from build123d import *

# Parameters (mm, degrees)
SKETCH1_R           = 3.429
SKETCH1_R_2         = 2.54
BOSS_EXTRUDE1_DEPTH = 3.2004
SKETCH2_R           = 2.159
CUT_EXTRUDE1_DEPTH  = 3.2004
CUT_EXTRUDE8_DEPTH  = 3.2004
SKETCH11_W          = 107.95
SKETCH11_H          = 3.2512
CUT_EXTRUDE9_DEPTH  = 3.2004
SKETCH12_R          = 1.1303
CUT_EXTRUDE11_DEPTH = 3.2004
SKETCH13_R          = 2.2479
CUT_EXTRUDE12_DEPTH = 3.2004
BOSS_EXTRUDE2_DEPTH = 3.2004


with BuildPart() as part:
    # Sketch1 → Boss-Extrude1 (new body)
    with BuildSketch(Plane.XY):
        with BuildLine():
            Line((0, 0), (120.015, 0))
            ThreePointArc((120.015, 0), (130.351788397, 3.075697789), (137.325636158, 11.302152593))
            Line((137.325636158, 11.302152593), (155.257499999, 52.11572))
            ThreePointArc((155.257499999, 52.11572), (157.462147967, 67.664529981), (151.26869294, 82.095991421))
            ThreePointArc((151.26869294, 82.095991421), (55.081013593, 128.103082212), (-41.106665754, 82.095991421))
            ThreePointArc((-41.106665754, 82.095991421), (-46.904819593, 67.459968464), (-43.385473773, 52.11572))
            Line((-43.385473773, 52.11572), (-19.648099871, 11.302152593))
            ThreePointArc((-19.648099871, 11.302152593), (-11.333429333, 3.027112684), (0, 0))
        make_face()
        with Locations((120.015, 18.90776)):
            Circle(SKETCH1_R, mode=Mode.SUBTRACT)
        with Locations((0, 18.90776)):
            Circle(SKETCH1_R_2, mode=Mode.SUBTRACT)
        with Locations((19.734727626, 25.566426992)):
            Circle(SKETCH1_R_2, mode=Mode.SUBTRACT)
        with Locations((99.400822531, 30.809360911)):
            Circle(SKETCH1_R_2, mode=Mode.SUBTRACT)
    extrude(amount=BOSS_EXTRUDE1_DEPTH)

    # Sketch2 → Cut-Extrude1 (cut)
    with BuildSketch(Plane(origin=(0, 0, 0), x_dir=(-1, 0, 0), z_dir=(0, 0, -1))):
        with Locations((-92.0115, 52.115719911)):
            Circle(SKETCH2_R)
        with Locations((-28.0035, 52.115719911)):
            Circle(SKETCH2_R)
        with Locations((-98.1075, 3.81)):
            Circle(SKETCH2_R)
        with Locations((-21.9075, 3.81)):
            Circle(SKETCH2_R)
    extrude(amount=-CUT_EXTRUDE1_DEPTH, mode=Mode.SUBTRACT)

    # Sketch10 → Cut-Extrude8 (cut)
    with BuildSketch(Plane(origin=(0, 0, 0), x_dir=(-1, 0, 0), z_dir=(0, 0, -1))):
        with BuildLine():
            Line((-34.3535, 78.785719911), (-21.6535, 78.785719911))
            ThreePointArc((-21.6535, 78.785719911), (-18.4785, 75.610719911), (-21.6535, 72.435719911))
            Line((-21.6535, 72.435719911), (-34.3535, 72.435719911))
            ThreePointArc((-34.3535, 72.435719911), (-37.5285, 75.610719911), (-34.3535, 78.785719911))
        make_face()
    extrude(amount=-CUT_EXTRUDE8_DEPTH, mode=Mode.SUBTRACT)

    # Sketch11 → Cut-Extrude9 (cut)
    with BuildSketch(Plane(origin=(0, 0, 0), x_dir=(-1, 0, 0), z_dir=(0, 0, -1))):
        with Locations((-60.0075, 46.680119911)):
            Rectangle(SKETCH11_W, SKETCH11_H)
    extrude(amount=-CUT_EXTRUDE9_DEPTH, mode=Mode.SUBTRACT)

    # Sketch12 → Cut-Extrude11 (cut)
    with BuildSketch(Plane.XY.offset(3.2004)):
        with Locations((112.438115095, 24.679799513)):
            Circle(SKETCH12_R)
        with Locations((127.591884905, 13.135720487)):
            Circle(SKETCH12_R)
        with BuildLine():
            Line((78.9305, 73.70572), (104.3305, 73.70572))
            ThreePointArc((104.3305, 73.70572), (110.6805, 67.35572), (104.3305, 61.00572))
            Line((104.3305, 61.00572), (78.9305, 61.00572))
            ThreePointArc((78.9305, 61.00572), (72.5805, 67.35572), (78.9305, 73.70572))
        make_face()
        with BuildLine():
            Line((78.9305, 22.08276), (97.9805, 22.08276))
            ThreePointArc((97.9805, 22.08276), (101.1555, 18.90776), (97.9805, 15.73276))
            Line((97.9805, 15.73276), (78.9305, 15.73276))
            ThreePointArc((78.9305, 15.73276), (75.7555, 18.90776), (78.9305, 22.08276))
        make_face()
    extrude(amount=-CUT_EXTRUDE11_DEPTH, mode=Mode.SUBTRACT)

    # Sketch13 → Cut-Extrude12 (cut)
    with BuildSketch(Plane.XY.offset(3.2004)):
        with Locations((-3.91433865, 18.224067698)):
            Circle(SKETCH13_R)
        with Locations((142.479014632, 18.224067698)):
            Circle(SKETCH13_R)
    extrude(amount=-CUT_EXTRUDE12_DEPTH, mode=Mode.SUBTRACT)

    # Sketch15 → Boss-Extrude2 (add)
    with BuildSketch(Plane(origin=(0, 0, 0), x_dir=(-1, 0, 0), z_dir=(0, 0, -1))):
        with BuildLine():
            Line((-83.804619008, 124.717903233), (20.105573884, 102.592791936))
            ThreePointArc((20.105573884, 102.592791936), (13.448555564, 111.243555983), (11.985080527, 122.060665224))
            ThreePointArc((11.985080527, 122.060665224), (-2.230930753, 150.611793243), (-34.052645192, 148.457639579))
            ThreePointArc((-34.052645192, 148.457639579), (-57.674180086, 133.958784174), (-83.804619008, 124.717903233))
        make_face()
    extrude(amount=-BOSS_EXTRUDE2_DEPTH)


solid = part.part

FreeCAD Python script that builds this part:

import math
import FreeCAD as App
import Part
import Sketcher

V = App.Vector
Q = App.Units.Quantity


def add_polygon(sketch, points):
    """Adds a closed chain of lines whose ends are joined by coincident constraints."""
    first, n = sketch.GeometryCount, len(points)
    for a, b in zip(points, points[1:] + points[:1]):
        sketch.addGeometry(Part.LineSegment(App.Vector(*a, 0), App.Vector(*b, 0)), False)
    for i in range(n):
        sketch.addConstraint(Sketcher.Constraint("Coincident", first + i, 2, first + (i + 1) % n, 1))

doc = App.newDocument("Part")
body = doc.addObject("PartDesign::Body", "Body")

sketch1 = doc.addObject("Sketcher::SketchObject", "Sketch")
body.addObject(sketch1)
sketch1.AttachmentSupport = (doc.XY_Plane, [""])
sketch1.MapMode = "FlatFace"
sketch1.addGeometry([
    Part.LineSegment(V(0, 0, 0), V(120, 0, 0)),
    Part.ArcOfCircle(Part.Circle(V(120, 18.9, 0), V(0, 0, 1), 18.9), math.radians(-90), math.radians(-24)),
    Part.LineSegment(V(137.3, 11.3, 0), V(155.3, 52.1, 0)),
    Part.ArcOfCircle(Part.Circle(V(128.6, 63.8, 0), V(0, 0, 1), 29.1), math.radians(-24), math.radians(39)),
    Part.ArcOfCircle(Part.Circle(V(55.1, 4.5, 0), V(0, 0, 1), 123.6), math.radians(39), math.radians(141)),
    Part.ArcOfCircle(Part.Circle(V(-20.5, 65.4, 0), V(0, 0, 1), 26.5), math.radians(141), math.radians(210)),
    Part.LineSegment(V(-43.4, 52.1, 0), V(-19.6, 11.3, 0)),
    Part.ArcOfCircle(Part.Circle(V(0, 22.7, 0), V(0, 0, 1), 22.7), math.radians(-150), math.radians(-90)),
    Part.Circle(V(0, 18.9, 0), V(0, 0, 1), 2.5),
    Part.Circle(V(120, 18.9, 0), V(0, 0, 1), 3.4),
    Part.Circle(V(19.7, 25.6, 0), V(0, 0, 1), 2.5),
    Part.Circle(V(99.4, 30.8, 0), V(0, 0, 1), 2.5),
], False)
sketch1.addConstraint([
    Sketcher.Constraint("Tangent", 0, 2, 1, 1),
    Sketcher.Constraint("Tangent", 1, 2, 2, 1),
    Sketcher.Constraint("Tangent", 2, 2, 3, 1),
    Sketcher.Constraint("Tangent", 3, 2, 4, 1),
    Sketcher.Constraint("Tangent", 4, 2, 5, 1),
    Sketcher.Constraint("Tangent", 5, 2, 6, 1),
    Sketcher.Constraint("Tangent", 6, 2, 7, 1),
    Sketcher.Constraint("Tangent", 7, 2, 0, 1),
    Sketcher.Constraint("Horizontal", 0),
    Sketcher.Constraint("Coincident", 7, 2, -1, 1),
    Sketcher.Constraint("Coincident", 9, 3, 1, 3),
    Sketcher.Constraint("Equal", 8, 10),
    Sketcher.Constraint("Equal", 10, 11),
    Sketcher.Constraint("PointOnObject", 8, 3, -2),
    Sketcher.Constraint("Horizontal", 1, 3, 8, 3),
    Sketcher.Constraint("Horizontal", 3, 2, 4, 2),
    Sketcher.Constraint("Horizontal", 2, 2, 5, 2),
    Sketcher.Constraint("Horizontal", 1, 2, 6, 2),
    Sketcher.Constraint("Diameter", 8, Q("0.2 in")),
    Sketcher.Constraint("Diameter", 9, Q("0.27 in")),
    Sketcher.Constraint("Radius", 1, Q("0.7444 in")),
    Sketcher.Constraint("DistanceX", 0, 1, 0, 2, Q("4.725 in")),
    Sketcher.Constraint("Radius", 4, Q("123.55402 mm")),
    Sketcher.Constraint("Radius", 5, Q("26.52202 mm")),
    Sketcher.Constraint("DistanceX", -1, 1, 2, 2, Q("6.1125 in")),
    Sketcher.Constraint("DistanceY", -1, 1, 2, 2, Q("2.0518 in")),
    Sketcher.Constraint("Radius", 3, Q("29.110345 mm")),
    Sketcher.Constraint("DistanceY", 1, 3, 11, 3, Q("11.901601 mm")),
    Sketcher.Constraint("DistanceX", 5, 2, 10, 3, Q("63.120201 mm")),
    Sketcher.Constraint("DistanceY", 7, 3, 10, 3, Q("2.836842 mm")),
    Sketcher.Constraint("DistanceX", 11, 3, 3, 3, Q("29.205261 mm")),
])
pad1 = doc.addObject("PartDesign::Pad", "Pad")
body.addObject(pad1)
pad1.Profile = sketch1
pad1.Length = Q("0.126 in")

sketch2 = doc.addObject("Sketcher::SketchObject", "Sketch001")
body.addObject(sketch2)
sketch2.AttachmentSupport = (doc.XY_Plane, [""])
sketch2.MapMode = "FlatFace"
sketch2.addGeometry([
    Part.Circle(V(92, 52.1, 0), V(0, 0, 1), 2.2),
    Part.Circle(V(28, 52.1, 0), V(0, 0, 1), 2.2),
    Part.Circle(V(98.1, 3.8, 0), V(0, 0, 1), 2.2),
    Part.Circle(V(21.9, 3.8, 0), V(0, 0, 1), 2.2),
], False)
sketch2.addConstraint([
    Sketcher.Constraint("Equal", 0, 1),
    Sketcher.Constraint("Equal", 1, 2),
    Sketcher.Constraint("Equal", 2, 3),
    Sketcher.Constraint("Horizontal", 0, 3, 1, 3),
    Sketcher.Constraint("Horizontal", 2, 3, 3, 3),
    Sketcher.Constraint("Diameter", 0, Q("0.17 in")),
    Sketcher.Constraint("DistanceX", 3, 3, 2, 3, Q("3 in")),
    Sketcher.Constraint("DistanceY", -1, 1, 2, 3, Q("0.15 in")),
    Sketcher.Constraint("DistanceX", 1, 3, 0, 3, Q("2.52 in")),
    Sketcher.Constraint("DistanceX", 0, 3, 2, 3, Q("0.24 in")),
    Sketcher.Constraint("DistanceX", -1, 1, 0, 3, Q("3.6225 in")),
    Sketcher.Constraint("DistanceY", -1, 1, 0, 3, Q("2.0518 in")),
])
pocket1 = doc.addObject("PartDesign::Pocket", "Pocket")
body.addObject(pocket1)
pocket1.Profile = sketch2
pocket1.Length = Q("0.126 in")
pocket1.Reversed = True

sketch3 = doc.addObject("Sketcher::SketchObject", "Sketch002")
body.addObject(sketch3)
sketch3.AttachmentSupport = (doc.XY_Plane, [""])
sketch3.MapMode = "FlatFace"
sketch3.addGeometry([
    Part.LineSegment(V(21.7, 78.8, 0), V(34.4, 78.8, 0)),
    Part.ArcOfCircle(Part.Circle(V(34.4, 75.6, 0), V(0, 0, 1), 3.2), math.radians(-90), math.radians(90)),
    Part.LineSegment(V(34.4, 72.4, 0), V(21.7, 72.4, 0)),
    Part.ArcOfCircle(Part.Circle(V(21.7, 75.6, 0), V(0, 0, 1), 3.2), math.radians(90), math.radians(270)),
], False)
sketch3.addConstraint([
    Sketcher.Constraint("Tangent", 0, 2, 1, 2),
    Sketcher.Constraint("Tangent", 1, 1, 2, 1),
    Sketcher.Constraint("Tangent", 2, 2, 3, 2),
    Sketcher.Constraint("Tangent", 3, 1, 0, 1),
    Sketcher.Constraint("Horizontal", 0),
    Sketcher.Constraint("Horizontal", 2),
    Sketcher.Constraint("DistanceX", 0, 1, 0, 2, Q("0.5 in")),
    Sketcher.Constraint("Radius", 1, Q("0.125 in")),
    Sketcher.Constraint("DistanceX", -1, 1, 1, 3, Q("1.3525 in")),
    Sketcher.Constraint("DistanceY", -1, 1, 1, 3, Q("2.9768 in")),
])
pocket2 = doc.addObject("PartDesign::Pocket", "Pocket001")
body.addObject(pocket2)
pocket2.Profile = sketch3
pocket2.Length = Q("0.126 in")
pocket2.Reversed = True

sketch4 = doc.addObject("Sketcher::SketchObject", "Sketch003")
body.addObject(sketch4)
sketch4.AttachmentSupport = (doc.XY_Plane, [""])
sketch4.MapMode = "FlatFace"
add_polygon(sketch4, [(114, 48.3), (114, 45.1), (6, 45.1), (6, 48.3)])
sketch4.addConstraint([
    Sketcher.Constraint("Vertical", 0),
    Sketcher.Constraint("Horizontal", 1),
    Sketcher.Constraint("Vertical", 2),
    Sketcher.Constraint("Horizontal", 3),
    Sketcher.Constraint("DistanceX", 1, 2, 1, 1, Q("4.25 in")),
    Sketcher.Constraint("DistanceY", 0, 2, 0, 1, Q("0.128 in")),
    Sketcher.Constraint("DistanceX", -1, 1, 0, 2, Q("4.4875 in")),
    Sketcher.Constraint("DistanceY", -1, 1, 0, 2, Q("1.7738 in")),
])
pocket3 = doc.addObject("PartDesign::Pocket", "Pocket002")
body.addObject(pocket3)
pocket3.Profile = sketch4
pocket3.Length = Q("0.126 in")
pocket3.Reversed = True

sketch5 = doc.addObject("Sketcher::SketchObject", "Sketch004")
body.addObject(sketch5)
sketch5.AttachmentSupport = (doc.XY_Plane, [""])
sketch5.MapMode = "FlatFace"
sketch5.AttachmentOffset = App.Placement(V(0, 0, 0.126 * 25.4), App.Rotation())
sketch5.addGeometry([
    Part.Circle(V(112.4, 24.7, 0), V(0, 0, 1), 1.1),
    Part.Circle(V(127.6, 13.1, 0), V(0, 0, 1), 1.1),
    Part.LineSegment(V(104.3, 73.7, 0), V(78.9, 73.7, 0)),
    Part.ArcOfCircle(Part.Circle(V(78.9, 67.4, 0), V(0, 0, 1), 6.3), math.radians(90), math.radians(270)),
    Part.LineSegment(V(78.9, 61, 0), V(104.3, 61, 0)),
    Part.ArcOfCircle(Part.Circle(V(104.3, 67.4, 0), V(0, 0, 1), 6.3), math.radians(-90), math.radians(90)),
    Part.LineSegment(V(98, 22.1, 0), V(78.9, 22.1, 0)),
    Part.ArcOfCircle(Part.Circle(V(78.9, 18.9, 0), V(0, 0, 1), 3.2), math.radians(90), math.radians(270)),
    Part.LineSegment(V(78.9, 15.7, 0), V(98, 15.7, 0)),
    Part.ArcOfCircle(Part.Circle(V(98, 18.9, 0), V(0, 0, 1), 3.2), math.radians(-90), math.radians(90)),
], False)
sketch5.addConstraint([
    Sketcher.Constraint("Tangent", 2, 2, 3, 1),
    Sketcher.Constraint("Tangent", 3, 2, 4, 1),
    Sketcher.Constraint("Tangent", 4, 2, 5, 1),
    Sketcher.Constraint("Tangent", 5, 2, 2, 1),
    Sketcher.Constraint("Tangent", 6, 2, 7, 1),
    Sketcher.Constraint("Tangent", 7, 2, 8, 1),
    Sketcher.Constraint("Tangent", 8, 2, 9, 1),
    Sketcher.Constraint("Tangent", 9, 2, 6, 1),
    Sketcher.Constraint("Horizontal", 2),
    Sketcher.Constraint("Horizontal", 4),
    Sketcher.Constraint("Horizontal", 6),
    Sketcher.Constraint("Horizontal", 8),
    Sketcher.Constraint("Equal", 0, 1),
    Sketcher.Constraint("Vertical", 3, 3, 7, 3),
    Sketcher.Constraint("DistanceX", 2, 2, 2, 1, Q("1 in")),
    Sketcher.Constraint("Radius", 3, Q("0.25 in")),
    Sketcher.Constraint("Diameter", 0, Q("0.089 in")),
    Sketcher.Constraint("Radius", 7, Q("0.125 in")),
    Sketcher.Constraint("DistanceX", 6, 2, 6, 1, Q("0.75 in")),
    Sketcher.Constraint("DistanceX", -1, 1, 3, 3, Q("3.1075 in")),
    Sketcher.Constraint("DistanceY", -1, 1, 3, 3, Q("2.6518 in")),
    Sketcher.Constraint("DistanceY", -1, 1, 7, 3, Q("0.7444 in")),
    Sketcher.Constraint("DistanceY", -1, 1, 0, 3, Q("24.6798 mm")),
    Sketcher.Constraint("DistanceY", 1, 3, 3, 3, Q("54.22 mm")),
    Sketcher.Constraint("DistanceX", 0, 3, 1, 3, Q("15.15377 mm")),
    Sketcher.Constraint("DistanceX", -1, 1, 0, 3, Q("112.438115 mm")),
])
pocket4 = doc.addObject("PartDesign::Pocket", "Pocket003")
body.addObject(pocket4)
pocket4.Profile = sketch5
pocket4.Length = Q("0.126 in")

sketch6 = doc.addObject("Sketcher::SketchObject", "Sketch005")
body.addObject(sketch6)
sketch6.AttachmentSupport = (doc.XY_Plane, [""])
sketch6.MapMode = "FlatFace"
sketch6.AttachmentOffset = App.Placement(V(0, 0, 0.126 * 25.4), App.Rotation())
sketch6.addGeometry([
    Part.Circle(V(-3.9, 18.2, 0), V(0, 0, 1), 2.2),
    Part.Circle(V(142.5, 18.2, 0), V(0, 0, 1), 2.2),
], False)
sketch6.addConstraint([
    Sketcher.Constraint("Equal", 0, 1),
    Sketcher.Constraint("Horizontal", 0, 3, 1, 3),
    Sketcher.Constraint("Diameter", 0, Q("0.177 in")),
    Sketcher.Constraint("DistanceX", 0, 3, -1, 1, Q("3.914339 mm")),
    Sketcher.Constraint("DistanceY", -1, 1, 0, 3, Q("18.224068 mm")),
    Sketcher.Constraint("DistanceX", -1, 1, 1, 3, Q("142.479015 mm")),
])
pocket5 = doc.addObject("PartDesign::Pocket", "Pocket004")
body.addObject(pocket5)
pocket5.Profile = sketch6
pocket5.Length = Q("0.126 in")

sketch7 = doc.addObject("Sketcher::SketchObject", "Sketch006")
body.addObject(sketch7)
sketch7.AttachmentSupport = (doc.XY_Plane, [""])
sketch7.MapMode = "FlatFace"
sketch7.addGeometry([
    Part.LineSegment(V(84, 125, 0), V(-20, 103, 0)),
    Part.ArcOfCircle(Part.Circle(V(-33, 119, 0), V(0, 0, 1), 21), math.radians(-53), math.radians(7)),
    Part.ArcOfCircle(Part.Circle(V(17, 126, 0), V(0, 0, 1), 29), math.radians(52), math.radians(187)),
    Part.ArcOfCircle(Part.Circle(V(114, 253, 0), V(0, 0, 1), 132), math.radians(-128), math.radians(-103)),
], False)
sketch7.addConstraint([
    Sketcher.Constraint("Coincident", 0, 2, 1, 1),
    Sketcher.Constraint("Tangent", 1, 2, 2, 2),
    Sketcher.Constraint("Tangent", 2, 1, 3, 1),
    Sketcher.Constraint("Coincident", 3, 2, 0, 1),
    Sketcher.Constraint("Radius", 1, Q("21.174039 mm")),
    Sketcher.Constraint("Radius", 2, Q("28.740626 mm")),
    Sketcher.Constraint("Radius", 3, Q("131.858796 mm")),
    Sketcher.Constraint("DistanceX", 1, 3, 2, 1, Q("2.6395001 in")),
    Sketcher.Constraint("DistanceX", 1, 2, 3, 2, Q("95.7897 mm")),
    Sketcher.Constraint("Distance", 0, Q("106.239582 mm")),
    Sketcher.Constraint("DistanceY", -1, 1, 1, 3, Q("119.395011 mm")),
    Sketcher.Constraint("DistanceX", -1, 1, 2, 3, Q("16.526881 mm")),
    Sketcher.Constraint("DistanceY", -1, 1, 0, 2, Q("102.592792 mm")),
])
pad2 = doc.addObject("PartDesign::Pad", "Pad001")
body.addObject(pad2)
pad2.Profile = sketch7
pad2.Length = Q("0.126 in")

doc.recompute()
